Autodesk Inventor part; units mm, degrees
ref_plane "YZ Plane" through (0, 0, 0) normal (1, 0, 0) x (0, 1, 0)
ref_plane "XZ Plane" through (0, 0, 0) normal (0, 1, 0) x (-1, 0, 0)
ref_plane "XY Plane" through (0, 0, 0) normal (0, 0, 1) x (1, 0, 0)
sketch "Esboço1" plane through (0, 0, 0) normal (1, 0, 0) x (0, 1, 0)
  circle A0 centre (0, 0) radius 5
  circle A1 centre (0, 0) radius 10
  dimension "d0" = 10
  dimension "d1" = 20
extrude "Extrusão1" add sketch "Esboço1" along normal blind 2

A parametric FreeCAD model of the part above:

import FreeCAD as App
import Part
import Sketcher

doc = App.newDocument("Part")
body = doc.addObject("PartDesign::Body", "Body")

sketch1 = doc.addObject("Sketcher::SketchObject", "Sketch")
body.addObject(sketch1)
sketch1.AttachmentSupport = (doc.YZ_Plane, [""])
sketch1.MapMode = "FlatFace"
sketch1.addGeometry([
    Part.Circle(App.Vector(0, 0, 0), App.Vector(0, 0, 1), 10),
    Part.Circle(App.Vector(0, 0, 0), App.Vector(0, 0, 1), 5),
], False)
sketch1.addConstraint([
    Sketcher.Constraint("Coincident", 0, 3, -1, 1),
    Sketcher.Constraint("Coincident", 1, 3, -1, 1),
    Sketcher.Constraint("Diameter", 0, 20.0),
    Sketcher.Constraint("Diameter", 1, 10.0),
])
pad1 = doc.addObject("PartDesign::Pad", "Pad")
body.addObject(pad1)
pad1.Profile = sketch1
pad1.Length = 2

doc.recompute()
